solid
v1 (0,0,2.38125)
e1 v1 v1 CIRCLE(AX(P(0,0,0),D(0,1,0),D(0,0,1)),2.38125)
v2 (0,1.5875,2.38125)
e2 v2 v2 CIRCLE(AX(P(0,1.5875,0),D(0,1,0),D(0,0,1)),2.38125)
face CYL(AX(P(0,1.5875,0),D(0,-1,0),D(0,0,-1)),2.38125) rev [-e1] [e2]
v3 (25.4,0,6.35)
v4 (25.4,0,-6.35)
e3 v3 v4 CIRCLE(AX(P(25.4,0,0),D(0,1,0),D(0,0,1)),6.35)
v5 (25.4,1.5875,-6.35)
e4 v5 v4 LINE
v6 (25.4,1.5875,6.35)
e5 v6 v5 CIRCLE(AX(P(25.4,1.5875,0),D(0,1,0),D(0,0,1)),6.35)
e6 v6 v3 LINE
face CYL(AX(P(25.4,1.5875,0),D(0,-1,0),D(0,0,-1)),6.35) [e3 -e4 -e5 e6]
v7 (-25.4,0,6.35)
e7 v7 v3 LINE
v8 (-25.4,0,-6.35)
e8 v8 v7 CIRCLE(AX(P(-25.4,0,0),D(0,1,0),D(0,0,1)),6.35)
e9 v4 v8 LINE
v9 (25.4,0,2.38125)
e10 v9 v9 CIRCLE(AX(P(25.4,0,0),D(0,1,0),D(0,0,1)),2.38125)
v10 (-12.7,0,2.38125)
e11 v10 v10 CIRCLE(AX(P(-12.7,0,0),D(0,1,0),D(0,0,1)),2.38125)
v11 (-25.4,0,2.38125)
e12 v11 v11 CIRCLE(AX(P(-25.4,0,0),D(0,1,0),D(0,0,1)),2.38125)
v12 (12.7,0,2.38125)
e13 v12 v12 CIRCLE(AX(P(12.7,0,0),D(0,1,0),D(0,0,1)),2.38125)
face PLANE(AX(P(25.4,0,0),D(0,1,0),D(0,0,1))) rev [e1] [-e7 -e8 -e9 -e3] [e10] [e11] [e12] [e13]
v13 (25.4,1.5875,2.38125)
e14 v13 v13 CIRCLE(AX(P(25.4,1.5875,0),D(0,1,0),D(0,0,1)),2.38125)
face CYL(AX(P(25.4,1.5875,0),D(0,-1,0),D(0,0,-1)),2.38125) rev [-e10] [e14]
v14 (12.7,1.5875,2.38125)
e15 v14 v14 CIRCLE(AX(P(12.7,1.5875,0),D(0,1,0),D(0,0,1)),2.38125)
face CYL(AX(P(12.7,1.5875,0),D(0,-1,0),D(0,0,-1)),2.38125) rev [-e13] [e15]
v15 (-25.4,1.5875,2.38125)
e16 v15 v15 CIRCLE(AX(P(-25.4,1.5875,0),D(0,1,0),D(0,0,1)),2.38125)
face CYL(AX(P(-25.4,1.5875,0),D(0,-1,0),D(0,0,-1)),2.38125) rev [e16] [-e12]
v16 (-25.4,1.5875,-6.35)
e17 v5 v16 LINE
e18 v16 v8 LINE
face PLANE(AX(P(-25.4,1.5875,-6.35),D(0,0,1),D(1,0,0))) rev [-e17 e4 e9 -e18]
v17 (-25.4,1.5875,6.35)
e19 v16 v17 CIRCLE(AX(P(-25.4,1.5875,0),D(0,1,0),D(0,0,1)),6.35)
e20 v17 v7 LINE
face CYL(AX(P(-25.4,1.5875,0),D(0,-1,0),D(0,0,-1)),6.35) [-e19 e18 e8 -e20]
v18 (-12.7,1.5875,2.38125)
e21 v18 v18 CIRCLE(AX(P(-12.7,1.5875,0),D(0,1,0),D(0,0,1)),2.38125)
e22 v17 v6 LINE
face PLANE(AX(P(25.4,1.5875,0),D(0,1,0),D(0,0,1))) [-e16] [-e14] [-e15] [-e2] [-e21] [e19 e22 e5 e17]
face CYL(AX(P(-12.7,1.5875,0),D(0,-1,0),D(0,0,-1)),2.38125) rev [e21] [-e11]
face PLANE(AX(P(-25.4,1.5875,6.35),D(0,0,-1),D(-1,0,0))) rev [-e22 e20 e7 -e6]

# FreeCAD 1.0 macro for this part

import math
import FreeCAD as App
import Part
import Sketcher
from FreeCAD import Vector
Q = App.Units.Quantity

doc = App.newDocument("Part")
body = doc.addObject("PartDesign::Body", "Body")

# Sketch on XZ plane
sketch1 = body.newObject("Sketcher::SketchObject", "Sketch")
sketch1.AttachmentSupport = (doc.getObject("XZ_Plane"), [""])
sketch1.MapMode = "FlatFace"
sketch1.addGeometry([
    Part.LineSegment(Vector(-25.4, 6.3, 0), Vector(25.4, 6.3, 0)),  # 0
    Part.ArcOfCircle(Part.Circle(Vector(25.4, 0, 0), Vector(0, 0, 1), 6.3), math.radians(-90), math.radians(90)),  # 1
    Part.LineSegment(Vector(25.4, -6.3, 0), Vector(-25.4, -6.3, 0)),  # 2
    Part.ArcOfCircle(Part.Circle(Vector(-25.4, 0, 0), Vector(0, 0, 1), 6.3), math.radians(90), math.radians(270)),  # 3
    Part.Circle(Vector(-25.4, 0, 0), Vector(0, 0, 1), 2.4),  # 4
    Part.Circle(Vector(-12.7, 0, 0), Vector(0, 0, 1), 2.4),  # 5
    Part.Circle(Vector(0, 0, 0), Vector(0, 0, 1), 2.4),  # 6
    Part.Circle(Vector(12.7, 0, 0), Vector(0, 0, 1), 2.4),  # 7
    Part.Circle(Vector(25.4, 0, 0), Vector(0, 0, 1), 2.4),  # 8
], False)
sketch1.addConstraint([
    Sketcher.Constraint("Tangent", 0, 2, 1, 2),
    Sketcher.Constraint("Tangent", 1, 1, 2, 1),
    Sketcher.Constraint("Tangent", 2, 2, 3, 2),
    Sketcher.Constraint("Tangent", 3, 1, 0, 1),
    Sketcher.Constraint("Horizontal", 0),
    Sketcher.Constraint("Horizontal", 2),
    Sketcher.Constraint("Coincident", 6, 3, -1, 1),
    Sketcher.Constraint("Coincident", 4, 3, 3, 3),
    Sketcher.Constraint("Coincident", 8, 3, 1, 3),
    Sketcher.Constraint("Equal", 4, 5),
    Sketcher.Constraint("Equal", 5, 6),
    Sketcher.Constraint("Equal", 6, 7),
    Sketcher.Constraint("Equal", 7, 8),
    Sketcher.Constraint("Symmetric", 1, 3, 3, 3, -1, 1),
    Sketcher.Constraint("Symmetric", 5, 3, 7, 3, -1, 1),
    Sketcher.Constraint("PointOnObject", 5, 3, -1),
    Sketcher.Constraint("DistanceX", 0, 1, 0, 2, Q("2 in")),
    Sketcher.Constraint("Radius", 1, Q("0.25 in")),
    Sketcher.Constraint("Diameter", 4, Q("0.1875 in")),
    Sketcher.Constraint("DistanceX", 5, 3, 7, 3, Q("1 in")),
])
pad1 = body.newObject("PartDesign::Pad", "Pad")
pad1.Profile = sketch1
pad1.Length = Q("0.0625 in")
pad1.Reversed = True

doc.recompute()
